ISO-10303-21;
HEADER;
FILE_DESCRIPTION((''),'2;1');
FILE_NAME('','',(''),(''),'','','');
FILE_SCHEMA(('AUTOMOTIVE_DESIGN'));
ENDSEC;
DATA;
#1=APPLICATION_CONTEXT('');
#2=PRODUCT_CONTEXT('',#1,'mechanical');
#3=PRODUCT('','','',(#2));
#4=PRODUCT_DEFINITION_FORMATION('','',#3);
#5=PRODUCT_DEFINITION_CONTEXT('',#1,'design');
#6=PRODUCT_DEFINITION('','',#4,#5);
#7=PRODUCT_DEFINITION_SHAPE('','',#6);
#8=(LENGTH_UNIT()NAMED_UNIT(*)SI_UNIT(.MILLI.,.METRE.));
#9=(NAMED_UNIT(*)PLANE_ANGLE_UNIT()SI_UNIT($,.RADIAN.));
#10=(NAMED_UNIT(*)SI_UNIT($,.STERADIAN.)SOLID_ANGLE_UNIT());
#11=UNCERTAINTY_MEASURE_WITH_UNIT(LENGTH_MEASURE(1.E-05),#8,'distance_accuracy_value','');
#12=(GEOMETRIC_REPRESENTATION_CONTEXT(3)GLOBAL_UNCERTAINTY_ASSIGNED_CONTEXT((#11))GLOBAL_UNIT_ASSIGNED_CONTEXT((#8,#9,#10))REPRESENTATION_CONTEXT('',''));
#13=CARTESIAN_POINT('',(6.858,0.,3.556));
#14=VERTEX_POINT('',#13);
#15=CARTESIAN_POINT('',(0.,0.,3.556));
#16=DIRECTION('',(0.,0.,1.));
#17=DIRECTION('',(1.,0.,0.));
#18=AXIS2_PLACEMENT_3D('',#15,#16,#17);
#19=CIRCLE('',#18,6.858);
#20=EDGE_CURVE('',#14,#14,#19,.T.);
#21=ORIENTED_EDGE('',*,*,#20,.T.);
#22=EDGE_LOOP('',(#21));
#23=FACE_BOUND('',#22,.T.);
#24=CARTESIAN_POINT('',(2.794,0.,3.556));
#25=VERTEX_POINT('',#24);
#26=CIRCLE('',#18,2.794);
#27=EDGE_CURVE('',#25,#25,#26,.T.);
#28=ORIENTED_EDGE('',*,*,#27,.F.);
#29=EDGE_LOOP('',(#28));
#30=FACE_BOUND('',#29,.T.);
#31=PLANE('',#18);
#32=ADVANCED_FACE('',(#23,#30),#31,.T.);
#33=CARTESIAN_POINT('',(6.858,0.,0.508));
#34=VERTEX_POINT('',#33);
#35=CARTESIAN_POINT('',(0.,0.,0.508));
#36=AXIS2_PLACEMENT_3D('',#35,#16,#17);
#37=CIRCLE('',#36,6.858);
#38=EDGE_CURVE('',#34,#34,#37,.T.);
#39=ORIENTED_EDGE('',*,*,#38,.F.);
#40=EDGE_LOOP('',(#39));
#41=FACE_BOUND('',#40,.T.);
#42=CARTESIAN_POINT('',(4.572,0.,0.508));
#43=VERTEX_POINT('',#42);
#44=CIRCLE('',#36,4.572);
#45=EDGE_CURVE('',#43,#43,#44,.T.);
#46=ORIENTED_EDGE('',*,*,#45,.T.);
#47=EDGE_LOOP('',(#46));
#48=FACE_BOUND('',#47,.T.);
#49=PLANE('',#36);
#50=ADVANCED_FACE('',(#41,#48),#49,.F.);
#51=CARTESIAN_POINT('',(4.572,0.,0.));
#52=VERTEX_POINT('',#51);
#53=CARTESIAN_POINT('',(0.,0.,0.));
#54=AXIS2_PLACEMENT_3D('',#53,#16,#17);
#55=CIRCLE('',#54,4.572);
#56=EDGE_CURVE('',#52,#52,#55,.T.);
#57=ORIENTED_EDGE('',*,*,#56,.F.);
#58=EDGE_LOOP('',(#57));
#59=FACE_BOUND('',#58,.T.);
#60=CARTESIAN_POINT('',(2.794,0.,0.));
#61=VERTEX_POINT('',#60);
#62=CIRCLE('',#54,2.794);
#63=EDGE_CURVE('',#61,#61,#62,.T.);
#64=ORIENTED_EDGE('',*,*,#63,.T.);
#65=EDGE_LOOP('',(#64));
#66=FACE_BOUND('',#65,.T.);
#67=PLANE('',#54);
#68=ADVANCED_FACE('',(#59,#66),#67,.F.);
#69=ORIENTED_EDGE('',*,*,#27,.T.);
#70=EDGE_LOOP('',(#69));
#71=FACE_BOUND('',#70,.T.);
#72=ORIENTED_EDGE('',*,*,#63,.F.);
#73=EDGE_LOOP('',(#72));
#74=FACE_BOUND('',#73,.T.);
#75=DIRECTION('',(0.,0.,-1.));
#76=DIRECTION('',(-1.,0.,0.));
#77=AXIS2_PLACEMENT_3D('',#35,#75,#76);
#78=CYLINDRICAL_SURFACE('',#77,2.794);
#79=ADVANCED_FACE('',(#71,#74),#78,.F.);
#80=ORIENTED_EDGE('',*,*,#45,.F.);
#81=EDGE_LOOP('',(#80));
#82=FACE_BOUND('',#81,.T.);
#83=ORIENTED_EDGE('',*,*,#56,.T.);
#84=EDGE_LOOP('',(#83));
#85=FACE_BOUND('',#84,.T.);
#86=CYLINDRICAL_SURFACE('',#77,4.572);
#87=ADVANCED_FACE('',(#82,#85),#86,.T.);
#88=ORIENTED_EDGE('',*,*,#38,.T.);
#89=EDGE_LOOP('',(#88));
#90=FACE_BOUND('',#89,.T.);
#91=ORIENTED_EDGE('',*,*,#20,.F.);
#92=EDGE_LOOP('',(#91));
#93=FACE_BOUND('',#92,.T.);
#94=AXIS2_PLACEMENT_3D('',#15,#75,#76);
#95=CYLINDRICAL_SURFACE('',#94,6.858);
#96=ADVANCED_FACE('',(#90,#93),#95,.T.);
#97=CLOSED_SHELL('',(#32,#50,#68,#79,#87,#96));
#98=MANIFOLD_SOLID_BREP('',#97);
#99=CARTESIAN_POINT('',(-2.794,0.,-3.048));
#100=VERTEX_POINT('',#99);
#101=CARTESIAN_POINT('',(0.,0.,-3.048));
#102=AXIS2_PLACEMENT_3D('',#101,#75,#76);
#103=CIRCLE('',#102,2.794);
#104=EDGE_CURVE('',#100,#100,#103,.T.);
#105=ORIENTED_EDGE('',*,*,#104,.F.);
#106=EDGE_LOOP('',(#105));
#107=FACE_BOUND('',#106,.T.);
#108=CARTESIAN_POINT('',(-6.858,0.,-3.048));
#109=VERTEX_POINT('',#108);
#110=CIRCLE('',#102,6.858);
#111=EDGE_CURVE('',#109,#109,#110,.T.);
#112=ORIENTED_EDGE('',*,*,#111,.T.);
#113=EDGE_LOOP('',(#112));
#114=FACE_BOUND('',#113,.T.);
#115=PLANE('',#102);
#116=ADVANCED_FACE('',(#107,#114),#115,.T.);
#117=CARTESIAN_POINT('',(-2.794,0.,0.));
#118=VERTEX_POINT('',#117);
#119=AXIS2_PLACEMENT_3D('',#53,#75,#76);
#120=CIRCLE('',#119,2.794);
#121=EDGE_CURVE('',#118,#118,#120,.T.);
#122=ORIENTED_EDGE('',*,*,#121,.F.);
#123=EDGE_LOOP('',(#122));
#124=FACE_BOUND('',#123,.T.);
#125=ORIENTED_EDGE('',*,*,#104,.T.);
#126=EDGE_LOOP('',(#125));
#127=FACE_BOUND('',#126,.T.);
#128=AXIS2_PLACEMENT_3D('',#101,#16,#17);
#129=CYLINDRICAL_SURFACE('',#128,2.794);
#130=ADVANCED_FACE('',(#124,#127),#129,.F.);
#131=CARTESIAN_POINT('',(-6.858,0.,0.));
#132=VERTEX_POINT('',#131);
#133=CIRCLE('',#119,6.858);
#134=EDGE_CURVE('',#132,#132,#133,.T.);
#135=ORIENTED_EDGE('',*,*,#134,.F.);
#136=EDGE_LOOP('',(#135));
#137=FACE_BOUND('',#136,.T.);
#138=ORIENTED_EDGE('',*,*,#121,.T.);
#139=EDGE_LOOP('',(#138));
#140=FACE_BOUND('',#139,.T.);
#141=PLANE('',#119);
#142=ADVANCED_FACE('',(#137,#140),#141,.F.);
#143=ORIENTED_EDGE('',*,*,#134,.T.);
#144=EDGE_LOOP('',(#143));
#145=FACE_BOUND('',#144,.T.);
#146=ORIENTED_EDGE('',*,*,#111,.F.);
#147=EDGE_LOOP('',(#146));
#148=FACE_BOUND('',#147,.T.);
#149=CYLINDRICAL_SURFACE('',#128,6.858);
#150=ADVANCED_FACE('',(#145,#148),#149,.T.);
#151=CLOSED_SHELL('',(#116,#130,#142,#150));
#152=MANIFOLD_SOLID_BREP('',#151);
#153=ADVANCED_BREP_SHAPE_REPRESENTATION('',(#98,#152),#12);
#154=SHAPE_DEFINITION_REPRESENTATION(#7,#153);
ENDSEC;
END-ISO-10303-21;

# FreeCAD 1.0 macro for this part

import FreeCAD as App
import Part
import Sketcher
Q = App.Units.Quantity

doc = App.newDocument("Part")
body = doc.addObject("PartDesign::Body", "Body")

sketch1 = doc.addObject("Sketcher::SketchObject", "Sketch")
body.addObject(sketch1)
sketch1.AttachmentSupport = (doc.XY_Plane, [""])
sketch1.MapMode = "FlatFace"
sketch1.addGeometry(Part.Circle(App.Vector(0, 0, 0), App.Vector(0, 0, 1), 4.6), False)
sketch1.addGeometry(Part.Circle(App.Vector(0, 0, 0), App.Vector(0, 0, 1), 2.8), False)
sketch1.addConstraint(Sketcher.Constraint("Coincident", 0, 3, -1, 1))
sketch1.addConstraint(Sketcher.Constraint("Coincident", 1, 3, -1, 1))
sketch1.addConstraint(Sketcher.Constraint("Diameter", 0, Q("0.36 in")))
sketch1.addConstraint(Sketcher.Constraint("Diameter", 1, Q("0.22 in")))
pad1 = doc.addObject("PartDesign::Pad", "Pad")
body.addObject(pad1)
pad1.Profile = sketch1
pad1.Length = Q("0.02 in")

sketch2 = doc.addObject("Sketcher::SketchObject", "Sketch001")
body.addObject(sketch2)
sketch2.AttachmentSupport = (doc.XY_Plane, [""])
sketch2.MapMode = "FlatFace"
sketch2.AttachmentOffset = App.Placement(App.Vector(0, 0, 0.02 * 25.4), App.Rotation())
sketch2.addGeometry(Part.Circle(App.Vector(0, 0, 0), App.Vector(0, 0, 1), 6.9), False)
sketch2.addGeometry(Part.Circle(App.Vector(0, 0, 0), App.Vector(0, 0, 1), 2.8), False)
sketch2.addConstraint(Sketcher.Constraint("Coincident", 0, 3, -1, 1))
sketch2.addConstraint(Sketcher.Constraint("Coincident", 1, 3, -1, 1))
sketch2.addConstraint(Sketcher.Constraint("Diameter", 0, Q("0.54 in")))
sketch2.addConstraint(Sketcher.Constraint("Diameter", 1, Q("0.22 in")))
pad2 = doc.addObject("PartDesign::Pad", "Pad001")
body.addObject(pad2)
pad2.Profile = sketch2
pad2.Length = Q("0.12 in")
body2 = doc.addObject("PartDesign::Body", "Body001")

sketch3 = doc.addObject("Sketcher::SketchObject", "Sketch002")
body2.addObject(sketch3)
sketch3.AttachmentSupport = (doc.getObject("XY_Plane001"), [""])
sketch3.MapMode = "FlatFace"
sketch3.addGeometry(Part.Circle(App.Vector(0, 0, 0), App.Vector(0, 0, 1), 6.9), False)
sketch3.addGeometry(Part.Circle(App.Vector(0, 0, 0), App.Vector(0, 0, 1), 2.8), False)
sketch3.addConstraint(Sketcher.Constraint("Coincident", 0, 3, -1, 1))
sketch3.addConstraint(Sketcher.Constraint("Coincident", 1, 3, -1, 1))
sketch3.addConstraint(Sketcher.Constraint("Diameter", 0, Q("0.54 in")))
sketch3.addConstraint(Sketcher.Constraint("Diameter", 1, Q("0.22 in")))
pad3 = doc.addObject("PartDesign::Pad", "Pad002")
body2.addObject(pad3)
pad3.Profile = sketch3
pad3.Length = Q("0.12 in")
pad3.Reversed = True

doc.recompute()
